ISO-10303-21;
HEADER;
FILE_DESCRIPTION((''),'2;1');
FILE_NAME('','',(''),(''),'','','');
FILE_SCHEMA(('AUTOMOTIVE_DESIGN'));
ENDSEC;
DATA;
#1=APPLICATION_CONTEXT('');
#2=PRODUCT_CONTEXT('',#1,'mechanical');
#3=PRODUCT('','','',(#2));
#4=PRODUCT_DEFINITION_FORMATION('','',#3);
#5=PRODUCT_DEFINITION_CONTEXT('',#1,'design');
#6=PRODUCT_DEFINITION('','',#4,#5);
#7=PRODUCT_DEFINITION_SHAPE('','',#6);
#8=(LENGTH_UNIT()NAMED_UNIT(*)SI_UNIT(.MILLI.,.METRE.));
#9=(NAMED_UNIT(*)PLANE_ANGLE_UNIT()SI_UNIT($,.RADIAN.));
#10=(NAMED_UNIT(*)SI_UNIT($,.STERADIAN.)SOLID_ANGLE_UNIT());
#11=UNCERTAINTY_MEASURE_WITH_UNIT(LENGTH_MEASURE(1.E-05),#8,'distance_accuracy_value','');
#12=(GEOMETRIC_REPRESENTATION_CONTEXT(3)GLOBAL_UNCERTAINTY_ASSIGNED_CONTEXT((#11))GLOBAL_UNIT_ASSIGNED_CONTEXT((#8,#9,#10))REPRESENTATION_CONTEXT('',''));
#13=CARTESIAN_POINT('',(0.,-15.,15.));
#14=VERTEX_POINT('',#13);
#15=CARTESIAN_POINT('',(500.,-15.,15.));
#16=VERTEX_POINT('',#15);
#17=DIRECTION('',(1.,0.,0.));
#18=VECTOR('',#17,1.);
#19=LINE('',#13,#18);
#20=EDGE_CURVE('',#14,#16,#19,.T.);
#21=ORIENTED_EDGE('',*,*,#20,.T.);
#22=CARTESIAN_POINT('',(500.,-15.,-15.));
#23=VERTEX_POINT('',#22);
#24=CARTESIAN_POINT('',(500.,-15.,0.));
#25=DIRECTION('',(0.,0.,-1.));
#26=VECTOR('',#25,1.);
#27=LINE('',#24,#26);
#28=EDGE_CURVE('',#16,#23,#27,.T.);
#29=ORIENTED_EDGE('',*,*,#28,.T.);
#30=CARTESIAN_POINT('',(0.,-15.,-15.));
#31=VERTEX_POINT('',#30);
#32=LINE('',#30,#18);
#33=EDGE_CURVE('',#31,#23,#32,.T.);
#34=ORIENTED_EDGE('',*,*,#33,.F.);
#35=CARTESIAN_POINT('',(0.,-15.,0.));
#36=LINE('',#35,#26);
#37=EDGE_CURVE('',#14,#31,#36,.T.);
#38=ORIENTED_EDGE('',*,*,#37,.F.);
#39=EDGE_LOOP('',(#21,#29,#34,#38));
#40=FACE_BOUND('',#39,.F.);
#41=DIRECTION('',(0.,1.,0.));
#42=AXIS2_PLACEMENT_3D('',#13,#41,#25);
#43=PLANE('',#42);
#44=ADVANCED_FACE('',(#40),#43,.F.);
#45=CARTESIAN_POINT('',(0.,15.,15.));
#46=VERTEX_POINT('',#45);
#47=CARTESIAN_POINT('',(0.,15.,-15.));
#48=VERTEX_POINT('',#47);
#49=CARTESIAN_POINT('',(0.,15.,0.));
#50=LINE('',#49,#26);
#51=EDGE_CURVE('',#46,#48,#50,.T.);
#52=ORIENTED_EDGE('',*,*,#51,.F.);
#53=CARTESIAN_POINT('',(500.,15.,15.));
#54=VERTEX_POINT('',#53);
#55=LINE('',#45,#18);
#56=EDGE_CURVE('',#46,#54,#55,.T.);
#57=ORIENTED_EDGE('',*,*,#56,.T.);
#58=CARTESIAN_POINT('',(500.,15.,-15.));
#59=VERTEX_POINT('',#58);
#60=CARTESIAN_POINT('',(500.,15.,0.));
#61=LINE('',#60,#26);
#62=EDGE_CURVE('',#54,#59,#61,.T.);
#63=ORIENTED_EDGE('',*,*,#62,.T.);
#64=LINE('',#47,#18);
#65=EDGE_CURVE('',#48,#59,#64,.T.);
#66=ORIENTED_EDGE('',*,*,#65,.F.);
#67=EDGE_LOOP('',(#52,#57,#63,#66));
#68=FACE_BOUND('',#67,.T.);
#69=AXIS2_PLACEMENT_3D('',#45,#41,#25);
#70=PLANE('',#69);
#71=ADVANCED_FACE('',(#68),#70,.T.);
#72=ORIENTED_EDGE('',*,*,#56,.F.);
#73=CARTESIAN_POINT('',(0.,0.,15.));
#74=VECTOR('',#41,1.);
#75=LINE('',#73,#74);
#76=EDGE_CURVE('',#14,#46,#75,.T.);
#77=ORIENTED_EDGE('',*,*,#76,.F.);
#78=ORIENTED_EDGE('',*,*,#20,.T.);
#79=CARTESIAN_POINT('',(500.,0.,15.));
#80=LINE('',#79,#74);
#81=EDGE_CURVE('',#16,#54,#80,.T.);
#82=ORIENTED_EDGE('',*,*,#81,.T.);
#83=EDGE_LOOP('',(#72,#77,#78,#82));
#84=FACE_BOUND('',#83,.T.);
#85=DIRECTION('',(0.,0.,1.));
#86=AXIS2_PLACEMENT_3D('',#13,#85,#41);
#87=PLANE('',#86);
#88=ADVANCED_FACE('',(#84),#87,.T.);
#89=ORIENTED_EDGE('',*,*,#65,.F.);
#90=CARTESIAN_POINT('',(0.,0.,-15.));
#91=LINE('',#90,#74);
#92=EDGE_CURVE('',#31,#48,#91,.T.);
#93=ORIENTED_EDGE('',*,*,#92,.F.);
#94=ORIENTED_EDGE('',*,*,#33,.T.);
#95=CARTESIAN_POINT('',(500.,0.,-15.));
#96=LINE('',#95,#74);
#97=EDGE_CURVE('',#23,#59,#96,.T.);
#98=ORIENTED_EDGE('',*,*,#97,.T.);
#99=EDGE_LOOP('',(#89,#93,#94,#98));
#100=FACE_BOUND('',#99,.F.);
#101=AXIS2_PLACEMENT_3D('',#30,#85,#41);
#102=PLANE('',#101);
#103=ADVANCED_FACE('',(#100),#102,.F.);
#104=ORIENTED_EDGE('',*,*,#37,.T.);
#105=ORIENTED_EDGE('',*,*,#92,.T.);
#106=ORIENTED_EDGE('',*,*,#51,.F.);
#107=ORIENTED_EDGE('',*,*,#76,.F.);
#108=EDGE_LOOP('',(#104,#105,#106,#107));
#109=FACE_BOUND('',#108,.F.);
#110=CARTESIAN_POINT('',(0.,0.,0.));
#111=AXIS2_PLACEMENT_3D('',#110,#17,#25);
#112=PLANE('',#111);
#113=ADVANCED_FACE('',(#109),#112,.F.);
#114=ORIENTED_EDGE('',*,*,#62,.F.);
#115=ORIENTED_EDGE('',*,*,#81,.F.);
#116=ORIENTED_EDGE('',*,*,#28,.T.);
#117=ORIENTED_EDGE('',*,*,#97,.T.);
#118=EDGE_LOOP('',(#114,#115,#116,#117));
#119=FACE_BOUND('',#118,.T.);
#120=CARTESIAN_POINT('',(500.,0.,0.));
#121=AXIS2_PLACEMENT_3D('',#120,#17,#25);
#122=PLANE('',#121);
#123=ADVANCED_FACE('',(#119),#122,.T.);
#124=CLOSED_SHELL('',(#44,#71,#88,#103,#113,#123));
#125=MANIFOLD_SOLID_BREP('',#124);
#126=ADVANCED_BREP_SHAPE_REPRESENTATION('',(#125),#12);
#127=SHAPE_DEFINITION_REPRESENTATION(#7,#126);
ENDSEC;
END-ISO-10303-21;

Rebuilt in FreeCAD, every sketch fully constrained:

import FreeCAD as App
import Part
import Sketcher
from FreeCAD import Vector
Q = App.Units.Quantity


def add_polygon(sketch, points):
    """Adds a closed chain of lines whose ends are joined by coincident constraints."""
    first, n = sketch.GeometryCount, len(points)
    for a, b in zip(points, points[1:] + points[:1]):
        sketch.addGeometry(Part.LineSegment(App.Vector(*a, 0), App.Vector(*b, 0)), False)
    for i in range(n):
        sketch.addConstraint(Sketcher.Constraint("Coincident", first + i, 2, first + (i + 1) % n, 1))

doc = App.newDocument("Part")
body = doc.addObject("PartDesign::Body", "Body")

# Sketch on YZ plane
sketch1 = body.newObject("Sketcher::SketchObject", "Sketch")
sketch1.AttachmentSupport = (doc.getObject("YZ_Plane"), [""])
sketch1.MapMode = "FlatFace"
add_polygon(sketch1, [(15, 15), (-15, 15), (-15, -15), (15, -15)])  # lines 0-3
sketch1.addConstraint([
    Sketcher.Constraint("Horizontal", 0),
    Sketcher.Constraint("Vertical", 1),
    Sketcher.Constraint("Horizontal", 2),
    Sketcher.Constraint("Vertical", 3),
    Sketcher.Constraint("Symmetric", 0, 2, 2, 2, -1, 1),
    Sketcher.Constraint("Equal", 2, 1),
    Sketcher.Constraint("DistanceX", 0, 2, 0, 1, Q("30 mm")),
])
pad1 = body.newObject("PartDesign::Pad", "Pad")
pad1.Profile = sketch1
pad1.Length = 500

doc.recompute()
